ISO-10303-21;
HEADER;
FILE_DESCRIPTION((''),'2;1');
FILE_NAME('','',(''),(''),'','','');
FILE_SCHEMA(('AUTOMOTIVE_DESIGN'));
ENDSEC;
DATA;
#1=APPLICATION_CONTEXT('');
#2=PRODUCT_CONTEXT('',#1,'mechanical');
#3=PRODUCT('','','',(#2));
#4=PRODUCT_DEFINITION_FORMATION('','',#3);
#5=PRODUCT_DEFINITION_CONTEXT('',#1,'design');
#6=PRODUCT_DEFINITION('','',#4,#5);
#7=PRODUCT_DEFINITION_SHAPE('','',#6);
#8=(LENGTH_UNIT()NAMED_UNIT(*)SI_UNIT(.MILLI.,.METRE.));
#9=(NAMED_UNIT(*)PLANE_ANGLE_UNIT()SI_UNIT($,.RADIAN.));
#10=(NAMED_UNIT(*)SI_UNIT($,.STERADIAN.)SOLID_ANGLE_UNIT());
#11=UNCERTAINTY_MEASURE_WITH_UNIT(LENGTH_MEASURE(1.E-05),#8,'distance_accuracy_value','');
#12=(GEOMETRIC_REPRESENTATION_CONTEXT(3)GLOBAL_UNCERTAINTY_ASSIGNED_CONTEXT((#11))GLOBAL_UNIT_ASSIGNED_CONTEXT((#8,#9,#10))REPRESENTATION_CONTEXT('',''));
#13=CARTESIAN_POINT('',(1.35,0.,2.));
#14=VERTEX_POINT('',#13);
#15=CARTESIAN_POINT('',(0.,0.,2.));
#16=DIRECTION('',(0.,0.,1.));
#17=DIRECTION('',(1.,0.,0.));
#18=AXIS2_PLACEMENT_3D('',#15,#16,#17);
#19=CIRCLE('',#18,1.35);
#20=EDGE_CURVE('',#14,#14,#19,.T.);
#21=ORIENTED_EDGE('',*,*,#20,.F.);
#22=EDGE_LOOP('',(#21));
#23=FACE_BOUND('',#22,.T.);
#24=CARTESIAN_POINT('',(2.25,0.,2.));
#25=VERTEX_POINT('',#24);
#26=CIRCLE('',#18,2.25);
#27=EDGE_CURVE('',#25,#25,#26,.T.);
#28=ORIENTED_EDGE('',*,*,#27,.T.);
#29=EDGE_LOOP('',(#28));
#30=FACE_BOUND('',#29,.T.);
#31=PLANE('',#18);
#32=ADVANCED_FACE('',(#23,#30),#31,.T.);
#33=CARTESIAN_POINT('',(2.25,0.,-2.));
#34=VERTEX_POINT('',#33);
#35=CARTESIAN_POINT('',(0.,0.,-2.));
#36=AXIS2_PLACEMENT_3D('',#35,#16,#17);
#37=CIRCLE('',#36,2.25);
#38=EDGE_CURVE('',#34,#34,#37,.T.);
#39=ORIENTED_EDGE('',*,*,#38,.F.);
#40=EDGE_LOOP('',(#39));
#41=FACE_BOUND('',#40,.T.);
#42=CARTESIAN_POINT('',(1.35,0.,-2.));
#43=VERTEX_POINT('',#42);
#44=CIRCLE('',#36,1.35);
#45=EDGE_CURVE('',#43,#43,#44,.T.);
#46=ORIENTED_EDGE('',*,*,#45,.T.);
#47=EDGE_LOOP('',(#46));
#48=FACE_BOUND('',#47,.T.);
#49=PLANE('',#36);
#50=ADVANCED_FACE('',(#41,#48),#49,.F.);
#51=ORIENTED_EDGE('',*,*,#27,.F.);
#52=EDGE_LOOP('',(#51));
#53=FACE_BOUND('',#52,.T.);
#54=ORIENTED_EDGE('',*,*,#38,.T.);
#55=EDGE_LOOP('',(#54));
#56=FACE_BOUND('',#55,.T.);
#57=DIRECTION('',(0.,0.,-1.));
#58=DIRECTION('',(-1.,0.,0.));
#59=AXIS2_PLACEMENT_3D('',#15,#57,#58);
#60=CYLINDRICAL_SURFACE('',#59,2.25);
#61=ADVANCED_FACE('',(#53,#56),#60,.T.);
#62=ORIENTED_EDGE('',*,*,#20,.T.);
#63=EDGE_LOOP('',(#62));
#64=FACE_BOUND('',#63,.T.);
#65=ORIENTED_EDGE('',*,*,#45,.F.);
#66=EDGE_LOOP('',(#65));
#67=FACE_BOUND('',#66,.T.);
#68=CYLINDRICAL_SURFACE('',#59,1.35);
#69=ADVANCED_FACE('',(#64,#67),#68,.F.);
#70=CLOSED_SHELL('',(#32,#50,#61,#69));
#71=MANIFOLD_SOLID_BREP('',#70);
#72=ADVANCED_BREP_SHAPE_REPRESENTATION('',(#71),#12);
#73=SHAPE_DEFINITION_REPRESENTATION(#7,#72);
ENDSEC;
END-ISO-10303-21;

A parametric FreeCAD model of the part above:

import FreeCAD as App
import Part
import Sketcher
from FreeCAD import Vector
Q = App.Units.Quantity

doc = App.newDocument("Part")
body = doc.addObject("PartDesign::Body", "Body")

# Sketch on XY plane
sketch1 = body.newObject("Sketcher::SketchObject", "Sketch")
sketch1.AttachmentSupport = (doc.getObject("XY_Plane"), [""])
sketch1.MapMode = "FlatFace"
sketch1.addGeometry([
    Part.Circle(Vector(0, 0, 0), Vector(0, 0, 1), 2.2),
    Part.Circle(Vector(0, 0, 0), Vector(0, 0, 1), 1.4),
], False)
sketch1.addConstraint([
    Sketcher.Constraint("Coincident", 0, 3, -1, 1),
    Sketcher.Constraint("Coincident", 1, 3, -1, 1),
    Sketcher.Constraint("Diameter", 0, Q("4.5 mm")),
    Sketcher.Constraint("Diameter", 1, Q("2.7 mm")),
])
pad1 = body.newObject("PartDesign::Pad", "Pad")
pad1.Profile = sketch1
pad1.Length = 4
pad1.Midplane = True

doc.recompute()
